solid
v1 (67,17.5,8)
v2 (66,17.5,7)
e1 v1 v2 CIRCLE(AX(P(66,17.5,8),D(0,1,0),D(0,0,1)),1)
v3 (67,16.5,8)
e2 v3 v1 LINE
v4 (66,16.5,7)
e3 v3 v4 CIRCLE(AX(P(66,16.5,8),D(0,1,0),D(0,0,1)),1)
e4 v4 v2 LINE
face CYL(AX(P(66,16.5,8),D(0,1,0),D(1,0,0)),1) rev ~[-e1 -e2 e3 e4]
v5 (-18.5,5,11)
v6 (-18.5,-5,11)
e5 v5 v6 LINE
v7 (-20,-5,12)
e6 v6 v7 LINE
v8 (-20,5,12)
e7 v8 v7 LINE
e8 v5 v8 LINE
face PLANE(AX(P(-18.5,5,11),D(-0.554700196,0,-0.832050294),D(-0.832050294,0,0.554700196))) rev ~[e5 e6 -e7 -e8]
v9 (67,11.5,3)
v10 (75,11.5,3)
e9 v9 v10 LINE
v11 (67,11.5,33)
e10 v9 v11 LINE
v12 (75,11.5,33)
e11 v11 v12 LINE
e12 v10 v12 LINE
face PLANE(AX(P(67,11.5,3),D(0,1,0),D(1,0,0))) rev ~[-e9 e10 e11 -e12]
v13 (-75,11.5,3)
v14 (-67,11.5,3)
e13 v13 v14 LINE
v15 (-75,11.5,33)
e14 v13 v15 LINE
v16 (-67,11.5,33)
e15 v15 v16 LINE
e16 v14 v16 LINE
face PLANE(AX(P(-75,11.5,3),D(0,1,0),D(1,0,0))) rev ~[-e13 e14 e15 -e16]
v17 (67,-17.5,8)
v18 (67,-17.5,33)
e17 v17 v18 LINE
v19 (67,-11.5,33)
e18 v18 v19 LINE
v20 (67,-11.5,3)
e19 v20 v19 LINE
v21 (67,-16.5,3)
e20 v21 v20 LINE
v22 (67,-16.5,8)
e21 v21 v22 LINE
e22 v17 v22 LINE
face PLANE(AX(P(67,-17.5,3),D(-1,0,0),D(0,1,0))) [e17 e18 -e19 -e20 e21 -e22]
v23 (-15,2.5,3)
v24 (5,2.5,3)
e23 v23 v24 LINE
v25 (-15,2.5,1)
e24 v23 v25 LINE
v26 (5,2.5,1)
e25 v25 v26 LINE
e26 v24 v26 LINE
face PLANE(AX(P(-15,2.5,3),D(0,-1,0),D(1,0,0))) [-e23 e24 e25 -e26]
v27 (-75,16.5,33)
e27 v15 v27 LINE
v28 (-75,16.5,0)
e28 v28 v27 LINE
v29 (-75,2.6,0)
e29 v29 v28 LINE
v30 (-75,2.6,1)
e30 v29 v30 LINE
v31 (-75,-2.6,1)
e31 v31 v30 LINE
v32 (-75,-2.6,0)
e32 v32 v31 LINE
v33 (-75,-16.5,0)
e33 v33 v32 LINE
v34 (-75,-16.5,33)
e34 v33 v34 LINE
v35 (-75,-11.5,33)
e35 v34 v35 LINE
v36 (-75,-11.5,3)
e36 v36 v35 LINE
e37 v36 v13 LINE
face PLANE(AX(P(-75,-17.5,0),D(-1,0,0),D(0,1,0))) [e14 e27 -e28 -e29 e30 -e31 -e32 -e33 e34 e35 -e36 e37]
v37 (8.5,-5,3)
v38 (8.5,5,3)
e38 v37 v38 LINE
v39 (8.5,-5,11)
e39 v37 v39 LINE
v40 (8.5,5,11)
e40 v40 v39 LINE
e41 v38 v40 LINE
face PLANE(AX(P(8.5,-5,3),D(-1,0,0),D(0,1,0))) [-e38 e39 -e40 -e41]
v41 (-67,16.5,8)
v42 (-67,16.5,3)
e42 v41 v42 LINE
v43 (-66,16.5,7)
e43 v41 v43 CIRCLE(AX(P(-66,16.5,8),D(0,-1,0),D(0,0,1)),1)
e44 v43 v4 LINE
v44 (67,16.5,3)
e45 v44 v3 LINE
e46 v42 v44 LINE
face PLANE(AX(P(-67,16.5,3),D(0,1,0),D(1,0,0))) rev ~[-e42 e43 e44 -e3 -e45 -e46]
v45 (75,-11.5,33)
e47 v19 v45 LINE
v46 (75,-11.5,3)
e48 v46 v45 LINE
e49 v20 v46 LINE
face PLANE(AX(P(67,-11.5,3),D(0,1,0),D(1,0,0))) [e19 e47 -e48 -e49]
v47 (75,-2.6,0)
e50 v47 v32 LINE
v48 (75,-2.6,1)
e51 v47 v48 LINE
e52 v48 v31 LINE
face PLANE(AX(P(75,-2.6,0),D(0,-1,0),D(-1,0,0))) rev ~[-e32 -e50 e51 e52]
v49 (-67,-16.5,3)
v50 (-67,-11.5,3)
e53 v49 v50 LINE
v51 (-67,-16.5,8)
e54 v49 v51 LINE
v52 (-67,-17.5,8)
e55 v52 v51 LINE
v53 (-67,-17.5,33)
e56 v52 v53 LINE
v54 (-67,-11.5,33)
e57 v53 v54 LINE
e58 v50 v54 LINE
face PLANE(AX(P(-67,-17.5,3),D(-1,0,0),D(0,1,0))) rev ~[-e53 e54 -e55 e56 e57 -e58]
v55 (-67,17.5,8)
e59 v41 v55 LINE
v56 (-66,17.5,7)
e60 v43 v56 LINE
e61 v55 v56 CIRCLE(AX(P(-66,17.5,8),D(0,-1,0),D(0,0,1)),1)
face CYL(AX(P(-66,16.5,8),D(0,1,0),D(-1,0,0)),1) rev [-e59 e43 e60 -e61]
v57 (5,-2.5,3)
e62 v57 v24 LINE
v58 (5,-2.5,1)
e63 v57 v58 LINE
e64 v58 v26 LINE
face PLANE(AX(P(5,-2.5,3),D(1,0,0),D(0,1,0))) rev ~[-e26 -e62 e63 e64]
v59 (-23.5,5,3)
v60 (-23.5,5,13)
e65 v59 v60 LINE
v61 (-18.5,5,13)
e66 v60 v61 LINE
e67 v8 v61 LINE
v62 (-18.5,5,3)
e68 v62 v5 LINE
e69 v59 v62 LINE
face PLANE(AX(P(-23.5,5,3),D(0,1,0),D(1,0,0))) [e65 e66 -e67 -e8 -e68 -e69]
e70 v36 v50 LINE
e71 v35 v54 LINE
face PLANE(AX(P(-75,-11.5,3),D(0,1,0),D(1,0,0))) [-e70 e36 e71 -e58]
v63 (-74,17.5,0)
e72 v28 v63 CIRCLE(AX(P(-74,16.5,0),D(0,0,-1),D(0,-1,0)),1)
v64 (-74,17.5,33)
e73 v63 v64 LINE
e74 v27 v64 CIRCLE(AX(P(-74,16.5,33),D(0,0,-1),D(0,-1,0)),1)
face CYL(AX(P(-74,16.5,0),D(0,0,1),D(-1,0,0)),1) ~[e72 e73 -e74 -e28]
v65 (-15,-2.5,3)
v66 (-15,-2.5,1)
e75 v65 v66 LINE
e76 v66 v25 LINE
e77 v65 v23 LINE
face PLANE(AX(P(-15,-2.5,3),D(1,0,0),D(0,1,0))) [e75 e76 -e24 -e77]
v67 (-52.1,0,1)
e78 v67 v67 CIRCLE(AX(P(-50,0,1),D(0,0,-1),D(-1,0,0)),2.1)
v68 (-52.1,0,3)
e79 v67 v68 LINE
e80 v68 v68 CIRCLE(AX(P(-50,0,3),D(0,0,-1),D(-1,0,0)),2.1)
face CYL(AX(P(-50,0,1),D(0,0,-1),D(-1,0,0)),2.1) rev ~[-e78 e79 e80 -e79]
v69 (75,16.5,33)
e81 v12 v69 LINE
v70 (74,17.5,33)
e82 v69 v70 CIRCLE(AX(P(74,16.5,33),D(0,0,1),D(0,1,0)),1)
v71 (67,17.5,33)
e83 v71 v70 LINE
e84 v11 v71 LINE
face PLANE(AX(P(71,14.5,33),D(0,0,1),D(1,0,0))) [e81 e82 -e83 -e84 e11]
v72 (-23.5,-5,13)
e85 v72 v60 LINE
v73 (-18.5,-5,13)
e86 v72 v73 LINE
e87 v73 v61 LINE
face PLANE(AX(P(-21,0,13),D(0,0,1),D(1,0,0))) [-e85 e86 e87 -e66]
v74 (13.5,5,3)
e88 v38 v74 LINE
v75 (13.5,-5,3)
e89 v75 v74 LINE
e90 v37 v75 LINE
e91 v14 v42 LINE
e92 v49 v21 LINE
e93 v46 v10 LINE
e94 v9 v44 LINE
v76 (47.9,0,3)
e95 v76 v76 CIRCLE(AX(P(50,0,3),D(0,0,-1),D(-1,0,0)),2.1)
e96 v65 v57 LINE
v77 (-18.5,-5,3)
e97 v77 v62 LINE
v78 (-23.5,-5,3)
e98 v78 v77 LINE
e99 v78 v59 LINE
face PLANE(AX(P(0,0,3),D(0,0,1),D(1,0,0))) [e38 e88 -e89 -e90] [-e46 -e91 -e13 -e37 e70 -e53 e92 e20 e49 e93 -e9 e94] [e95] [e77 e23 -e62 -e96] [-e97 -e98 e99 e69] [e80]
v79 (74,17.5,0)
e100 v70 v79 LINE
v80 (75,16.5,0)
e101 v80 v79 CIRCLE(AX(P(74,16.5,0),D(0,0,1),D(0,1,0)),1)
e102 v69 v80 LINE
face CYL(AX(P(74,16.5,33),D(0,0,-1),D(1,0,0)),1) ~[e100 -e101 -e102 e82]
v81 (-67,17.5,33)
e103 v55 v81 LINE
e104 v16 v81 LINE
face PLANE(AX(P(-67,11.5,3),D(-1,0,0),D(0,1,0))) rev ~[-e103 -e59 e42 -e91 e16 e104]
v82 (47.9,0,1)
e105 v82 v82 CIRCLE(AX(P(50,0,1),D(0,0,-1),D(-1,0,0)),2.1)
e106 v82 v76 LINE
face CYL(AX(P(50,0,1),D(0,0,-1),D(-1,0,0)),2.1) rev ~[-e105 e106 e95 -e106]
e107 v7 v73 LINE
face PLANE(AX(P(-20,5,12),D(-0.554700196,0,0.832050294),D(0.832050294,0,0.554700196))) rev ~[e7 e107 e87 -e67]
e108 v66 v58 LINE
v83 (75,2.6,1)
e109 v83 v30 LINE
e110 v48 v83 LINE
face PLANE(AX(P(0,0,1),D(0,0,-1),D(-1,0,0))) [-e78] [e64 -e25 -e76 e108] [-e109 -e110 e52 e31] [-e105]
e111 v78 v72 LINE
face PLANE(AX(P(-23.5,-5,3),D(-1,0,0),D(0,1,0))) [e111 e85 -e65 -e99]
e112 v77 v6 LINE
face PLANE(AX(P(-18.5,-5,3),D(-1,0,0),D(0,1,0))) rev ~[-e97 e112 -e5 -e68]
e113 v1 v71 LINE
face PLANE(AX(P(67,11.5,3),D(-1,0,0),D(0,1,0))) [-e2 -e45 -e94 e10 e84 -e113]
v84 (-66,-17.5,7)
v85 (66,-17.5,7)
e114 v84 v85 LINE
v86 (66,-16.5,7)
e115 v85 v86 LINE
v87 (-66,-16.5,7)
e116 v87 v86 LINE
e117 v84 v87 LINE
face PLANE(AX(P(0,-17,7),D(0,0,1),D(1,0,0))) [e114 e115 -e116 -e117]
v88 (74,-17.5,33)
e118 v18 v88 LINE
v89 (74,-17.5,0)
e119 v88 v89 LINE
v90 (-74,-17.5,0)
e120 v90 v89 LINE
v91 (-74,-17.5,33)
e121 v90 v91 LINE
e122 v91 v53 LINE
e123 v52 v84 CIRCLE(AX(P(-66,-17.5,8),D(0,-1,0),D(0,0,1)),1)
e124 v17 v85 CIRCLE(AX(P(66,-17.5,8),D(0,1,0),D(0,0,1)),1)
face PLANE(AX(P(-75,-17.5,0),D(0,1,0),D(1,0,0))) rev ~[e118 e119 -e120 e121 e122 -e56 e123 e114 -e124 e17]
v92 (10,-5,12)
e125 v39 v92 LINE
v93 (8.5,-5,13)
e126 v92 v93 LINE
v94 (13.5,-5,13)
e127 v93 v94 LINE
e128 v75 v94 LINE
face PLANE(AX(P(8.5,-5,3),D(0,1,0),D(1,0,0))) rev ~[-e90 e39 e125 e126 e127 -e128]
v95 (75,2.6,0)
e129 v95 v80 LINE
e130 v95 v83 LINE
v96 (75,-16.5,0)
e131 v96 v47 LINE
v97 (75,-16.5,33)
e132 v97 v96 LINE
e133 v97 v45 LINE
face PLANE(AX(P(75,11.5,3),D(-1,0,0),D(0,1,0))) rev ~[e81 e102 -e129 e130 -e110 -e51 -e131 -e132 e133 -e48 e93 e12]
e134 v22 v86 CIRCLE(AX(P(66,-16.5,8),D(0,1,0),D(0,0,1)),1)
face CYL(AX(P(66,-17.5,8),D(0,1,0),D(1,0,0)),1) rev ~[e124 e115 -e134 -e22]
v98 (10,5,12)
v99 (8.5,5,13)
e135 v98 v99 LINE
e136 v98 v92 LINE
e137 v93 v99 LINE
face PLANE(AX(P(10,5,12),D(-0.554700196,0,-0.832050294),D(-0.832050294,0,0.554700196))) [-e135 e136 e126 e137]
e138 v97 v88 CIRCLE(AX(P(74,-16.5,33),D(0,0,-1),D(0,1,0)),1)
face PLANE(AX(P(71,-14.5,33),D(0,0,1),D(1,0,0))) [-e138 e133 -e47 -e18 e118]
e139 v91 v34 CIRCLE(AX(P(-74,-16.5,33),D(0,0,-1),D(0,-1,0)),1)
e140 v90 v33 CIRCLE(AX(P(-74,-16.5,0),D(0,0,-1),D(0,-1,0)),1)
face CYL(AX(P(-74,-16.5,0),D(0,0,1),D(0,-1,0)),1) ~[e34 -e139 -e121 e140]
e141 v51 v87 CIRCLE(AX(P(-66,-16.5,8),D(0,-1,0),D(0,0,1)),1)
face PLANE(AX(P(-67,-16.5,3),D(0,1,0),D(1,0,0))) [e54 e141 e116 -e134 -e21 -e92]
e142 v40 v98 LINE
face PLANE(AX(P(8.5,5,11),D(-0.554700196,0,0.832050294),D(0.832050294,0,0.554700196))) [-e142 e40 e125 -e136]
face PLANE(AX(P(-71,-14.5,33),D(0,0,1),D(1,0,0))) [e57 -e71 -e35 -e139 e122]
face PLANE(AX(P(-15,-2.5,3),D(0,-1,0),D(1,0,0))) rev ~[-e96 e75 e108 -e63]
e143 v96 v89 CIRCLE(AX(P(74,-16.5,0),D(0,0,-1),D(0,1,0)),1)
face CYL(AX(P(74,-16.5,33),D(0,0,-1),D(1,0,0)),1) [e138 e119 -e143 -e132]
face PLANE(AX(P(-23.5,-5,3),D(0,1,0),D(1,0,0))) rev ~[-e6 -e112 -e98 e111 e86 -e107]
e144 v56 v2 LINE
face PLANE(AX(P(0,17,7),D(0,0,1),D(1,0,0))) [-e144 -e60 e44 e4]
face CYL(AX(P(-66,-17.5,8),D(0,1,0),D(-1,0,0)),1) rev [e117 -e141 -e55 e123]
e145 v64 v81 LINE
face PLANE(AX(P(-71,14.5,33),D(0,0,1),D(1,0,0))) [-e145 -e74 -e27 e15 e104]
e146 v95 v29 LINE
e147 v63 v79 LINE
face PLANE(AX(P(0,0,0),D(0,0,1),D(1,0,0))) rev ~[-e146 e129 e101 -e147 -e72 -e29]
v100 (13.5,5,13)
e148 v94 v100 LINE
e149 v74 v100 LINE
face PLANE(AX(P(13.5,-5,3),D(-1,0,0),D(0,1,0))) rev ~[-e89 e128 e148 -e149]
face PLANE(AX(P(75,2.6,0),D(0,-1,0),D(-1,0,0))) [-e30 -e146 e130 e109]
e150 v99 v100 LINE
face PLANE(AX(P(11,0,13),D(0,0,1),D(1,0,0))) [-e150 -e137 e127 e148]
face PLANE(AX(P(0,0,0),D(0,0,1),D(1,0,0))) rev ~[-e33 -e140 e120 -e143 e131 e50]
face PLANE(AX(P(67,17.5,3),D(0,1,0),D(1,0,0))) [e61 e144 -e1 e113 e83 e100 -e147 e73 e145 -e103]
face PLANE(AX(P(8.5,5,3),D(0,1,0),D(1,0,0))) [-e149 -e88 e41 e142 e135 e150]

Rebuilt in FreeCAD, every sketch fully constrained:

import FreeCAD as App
import Part
import Sketcher
from FreeCAD import Vector
Q = App.Units.Quantity


def edges_at(feature, points):
    """Names of the edges that pass closest to the given points."""
    edges = feature.Shape.Edges
    near = lambda p: min(range(len(edges)), key=lambda i: edges[i].distToShape(Part.Vertex(*p))[0])
    return sorted({f"Edge{near(p) + 1}" for p in points})


def add_polygon(sketch, points):
    """Adds a closed chain of lines whose ends are joined by coincident constraints."""
    first, n = sketch.GeometryCount, len(points)
    for a, b in zip(points, points[1:] + points[:1]):
        sketch.addGeometry(Part.LineSegment(App.Vector(*a, 0), App.Vector(*b, 0)), False)
    for i in range(n):
        sketch.addConstraint(Sketcher.Constraint("Coincident", first + i, 2, first + (i + 1) % n, 1))

doc = App.newDocument("Part")
body = doc.addObject("PartDesign::Body", "Body")

# Sketch on XY plane
sketch1 = body.newObject("Sketcher::SketchObject", "Sketch")
sketch1.AttachmentSupport = (doc.getObject("XY_Plane"), [""])
sketch1.MapMode = "FlatFace"
add_polygon(sketch1, [(-75, 18), (-75, -18), (75, -18), (75, 18)])  # lines 0-3
sketch1.addConstraint([
    Sketcher.Constraint("Vertical", 0),
    Sketcher.Constraint("Horizontal", 1),
    Sketcher.Constraint("Vertical", 2),
    Sketcher.Constraint("Horizontal", 3),
    Sketcher.Constraint("Symmetric", 0, 2, 2, 2, -1, 1),
    Sketcher.Constraint("DistanceX", 1, 1, 1, 2, Q("150 mm")),
    Sketcher.Constraint("DistanceY", 0, 2, 0, 1, Q("35 mm")),
])
pad1 = body.newObject("PartDesign::Pad", "Pad")
pad1.Profile = sketch1
pad1.Length = 3

# Sketch on XY plane
sketch2 = body.newObject("Sketcher::SketchObject", "Sketch001")
sketch2.AttachmentSupport = (doc.getObject("XY_Plane"), [""])
sketch2.MapMode = "FlatFace"
sketch2.AttachmentOffset = App.Placement(Vector(0, 0, 3), App.Rotation())
add_polygon(sketch2, [(-15, 2), (-15, -2), (5, -2), (5, 2)])  # lines 0-3
sketch2.addConstraint([
    Sketcher.Constraint("Vertical", 0),
    Sketcher.Constraint("Horizontal", 1),
    Sketcher.Constraint("Vertical", 2),
    Sketcher.Constraint("Horizontal", 3),
    Sketcher.Constraint("DistanceX", 1, 1, 1, 2, Q("20 mm")),
    Sketcher.Constraint("DistanceY", 0, 2, 0, 1, Q("5 mm")),
    Sketcher.Constraint("DistanceX", 0, 2, -1, 1, Q("15 mm")),
    Sketcher.Constraint("DistanceY", 0, 2, -1, 1, Q("2.5 mm")),
])
pocket1 = body.newObject("PartDesign::Pocket", "Pocket")
pocket1.Profile = sketch2
pocket1.Length = 2

# Sketch on XY plane
sketch3 = body.newObject("Sketcher::SketchObject", "Sketch002")
sketch3.AttachmentSupport = (doc.getObject("XY_Plane"), [""])
sketch3.MapMode = "FlatFace"
add_polygon(sketch3, [(75, 3), (75, -3), (-75, -3), (-75, 3)])  # lines 0-3
sketch3.addConstraint([
    Sketcher.Constraint("Vertical", 0),
    Sketcher.Constraint("Horizontal", 1),
    Sketcher.Constraint("Vertical", 2),
    Sketcher.Constraint("Horizontal", 3),
    Sketcher.Constraint("Symmetric", 0, 2, 2, 2, -1, 1),
    Sketcher.Constraint("DistanceX", 1, 2, 1, 1, Q("150 mm")),
    Sketcher.Constraint("DistanceY", 0, 2, 0, 1, Q("5.2 mm")),
])
pocket2 = body.newObject("PartDesign::Pocket", "Pocket001")
pocket2.Profile = sketch3
pocket2.Length = 1
pocket2.Reversed = True

# Sketch on XY plane
sketch4 = body.newObject("Sketcher::SketchObject", "Sketch003")
sketch4.AttachmentSupport = (doc.getObject("XY_Plane"), [""])
sketch4.MapMode = "FlatFace"
sketch4.AttachmentOffset = App.Placement(Vector(0, 0, 1), App.Rotation())
sketch4.addGeometry([
    Part.Circle(Vector(50, 0, 0), Vector(0, 0, 1), 2.1),
    Part.Circle(Vector(-50, 0, 0), Vector(0, 0, 1), 2.1),
], False)
sketch4.addConstraint([
    Sketcher.Constraint("Equal", 0, 1),
    Sketcher.Constraint("Symmetric", 0, 3, 1, 3, -1, 1),
    Sketcher.Constraint("PointOnObject", 0, 3, -1),
    Sketcher.Constraint("Diameter", 0, Q("4.2 mm")),
    Sketcher.Constraint("DistanceX", -1, 1, 0, 3, Q("50 mm")),
])
pocket3 = body.newObject("PartDesign::Pocket", "Pocket002")
pocket3.Profile = sketch4
pocket3.Type = "ThroughAll"
pocket3.Reversed = True

# Sketch on XY plane
sketch5 = body.newObject("Sketcher::SketchObject", "Sketch004")
sketch5.AttachmentSupport = (doc.getObject("XY_Plane"), [""])
sketch5.MapMode = "FlatFace"
sketch5.AttachmentOffset = App.Placement(Vector(0, 0, 3), App.Rotation())
add_polygon(sketch5, [(67, 18), (67, 12), (75, 12), (75, 18)])  # lines 0-3
add_polygon(sketch5, [(67, -12), (67, -18), (75, -18), (75, -12)])  # lines 4-7
add_polygon(sketch5, [(-75, -12), (-75, -18), (-67, -18), (-67, -12)])  # lines 8-11
add_polygon(sketch5, [(-75, 18), (-75, 12), (-67, 12), (-67, 18)])  # lines 12-15
sketch5.addConstraint([
    Sketcher.Constraint("Vertical", 0),
    Sketcher.Constraint("Horizontal", 1),
    Sketcher.Constraint("Vertical", 2),
    Sketcher.Constraint("Horizontal", 3),
    Sketcher.Constraint("Vertical", 4),
    Sketcher.Constraint("Horizontal", 5),
    Sketcher.Constraint("Vertical", 6),
    Sketcher.Constraint("Horizontal", 7),
    Sketcher.Constraint("Vertical", 8),
    Sketcher.Constraint("Horizontal", 9),
    Sketcher.Constraint("Vertical", 10),
    Sketcher.Constraint("Horizontal", 11),
    Sketcher.Constraint("Vertical", 12),
    Sketcher.Constraint("Horizontal", 13),
    Sketcher.Constraint("Vertical", 14),
    Sketcher.Constraint("Horizontal", 15),
    Sketcher.Constraint("Symmetric", 2, 2, 8, 2, -1, 1),
    Sketcher.Constraint("Symmetric", 0, 2, 10, 2, -1, 1),
    Sketcher.Constraint("Symmetric", 6, 2, 12, 2, -1, 1),
    Sketcher.Constraint("Symmetric", 4, 2, 14, 2, -1, 1),
    Sketcher.Constraint("Symmetric", 5, 2, 8, 2, -2),
    Sketcher.Constraint("Symmetric", 7, 2, 10, 2, -2),
    Sketcher.Constraint("DistanceX", 1, 1, 1, 2, Q("8 mm")),
    Sketcher.Constraint("DistanceY", 0, 2, 0, 1, Q("6 mm")),
    Sketcher.Constraint("DistanceX", -1, 1, 0, 2, Q("67 mm")),
    Sketcher.Constraint("DistanceY", 4, 2, 0, 2, Q("29 mm")),
])
pad2 = body.newObject("PartDesign::Pad", "Pad001")
pad2.Profile = sketch5
pad2.Length = 30
doc.recompute()

fillet = body.newObject("PartDesign::Fillet", "Fillet")
fillet.Base = (pad2, edges_at(pad2, [
    (75, -17.5, 16.5),
    (75, 17.5, 16.5),
    (-75, 17.5, 16.5),
    (-75, -17.5, 16.5),
]))
fillet.Radius = 1

# Sketch on XY plane
sketch6 = body.newObject("Sketcher::SketchObject", "Sketch005")
sketch6.AttachmentSupport = (doc.getObject("XY_Plane"), [""])
sketch6.MapMode = "FlatFace"
sketch6.AttachmentOffset = App.Placement(Vector(0, 0, 3), App.Rotation())
add_polygon(sketch6, [(-67, 17.5), (-67, 16.5), (67, 16.5), (67, 17.5)])  # lines 0-3
add_polygon(sketch6, [(-67, -16.5), (-67, -17.5), (67, -17.5), (67, -16.5)])  # lines 4-7
sketch6.addConstraint([
    Sketcher.Constraint("Vertical", 0),
    Sketcher.Constraint("Horizontal", 1),
    Sketcher.Constraint("Vertical", 2),
    Sketcher.Constraint("Horizontal", 3),
    Sketcher.Constraint("Vertical", 4),
    Sketcher.Constraint("Horizontal", 5),
    Sketcher.Constraint("Vertical", 6),
    Sketcher.Constraint("Horizontal", 7),
    Sketcher.Constraint("Symmetric", 2, 2, 4, 2, -1, 1),
    Sketcher.Constraint("Symmetric", 0, 2, 6, 2, -1, 1),
    Sketcher.Constraint("Vertical", 3, 2, 4, 2),
    Sketcher.Constraint("DistanceX", 1, 1, 1, 2, Q("134 mm")),
    Sketcher.Constraint("DistanceY", 0, 2, 0, 1, Q("1 mm")),
    Sketcher.Constraint("DistanceY", 4, 2, 0, 2, Q("34 mm")),
])
pad3 = body.newObject("PartDesign::Pad", "Pad002")
pad3.Profile = sketch6
pad3.Length = 4
doc.recompute()

fillet2 = body.newObject("PartDesign::Fillet", "Fillet001")
fillet2.Base = (pad3, edges_at(pad3, [
    (67, 17, 7),
    (-67, 17, 7),
    (-67, -17, 7),
    (67, -17, 7),
]))
fillet2.Radius = 1

# Sketch on XY plane
sketch7 = body.newObject("Sketcher::SketchObject", "Sketch006")
sketch7.AttachmentSupport = (doc.getObject("XY_Plane"), [""])
sketch7.MapMode = "FlatFace"
sketch7.AttachmentOffset = App.Placement(Vector(0, 0, 3), App.Rotation())
add_polygon(sketch7, [(-24, 5), (-24, -5), (-18, -5), (-18, 5)])  # lines 0-3
add_polygon(sketch7, [(8, 5), (8, -5), (14, -5), (14, 5)])  # lines 4-7
sketch7.addConstraint([
    Sketcher.Constraint("Vertical", 0),
    Sketcher.Constraint("Horizontal", 1),
    Sketcher.Constraint("Vertical", 2),
    Sketcher.Constraint("Horizontal", 3),
    Sketcher.Constraint("Vertical", 4),
    Sketcher.Constraint("Horizontal", 5),
    Sketcher.Constraint("Vertical", 6),
    Sketcher.Constraint("Horizontal", 7),
    Sketcher.Constraint("Horizontal", 1, 2, 4, 2),
    Sketcher.Constraint("Horizontal", 3, 2, 6, 2),
    Sketcher.Constraint("Equal", 3, 5),
    Sketcher.Constraint("DistanceX", 1, 1, 1, 2, Q("5 mm")),
    Sketcher.Constraint("DistanceY", 0, 2, 0, 1, Q("10 mm")),
    Sketcher.Constraint("DistanceY", 0, 2, -1, 1, Q("5 mm")),
    Sketcher.Constraint("DistanceX", 1, 2, 4, 2, Q("27 mm")),
    Sketcher.Constraint("DistanceX", 0, 2, -1, 1, Q("23.5 mm")),
])
pad4 = body.newObject("PartDesign::Pad", "Pad003")
pad4.Profile = sketch7
pad4.Length = 10

# Sketch on XZ plane
sketch8 = body.newObject("Sketcher::SketchObject", "Sketch007")
sketch8.AttachmentSupport = (doc.getObject("XZ_Plane"), [""])
sketch8.MapMode = "FlatFace"
sketch8.AttachmentOffset = App.Placement(Vector(0, 0, -5), App.Rotation())
add_polygon(sketch8, [(-18.5, 13), (-18.5, 11), (-20, 12)])  # lines 0-2
add_polygon(sketch8, [(8.5, 11), (8.5, 13), (10, 12)])  # lines 3-5
sketch8.addConstraint([
    Sketcher.Constraint("Vertical", 0),
    Sketcher.Constraint("Vertical", 3),
    Sketcher.Constraint("Parallel", 1, 4),
    Sketcher.Constraint("Parallel", 2, 5),
    Sketcher.Constraint("Horizontal", 2, 2, 3, 2),
    Sketcher.Constraint("Horizontal", 1, 2, 4, 2),
    Sketcher.Constraint("Horizontal", 0, 2, 5, 2),
    Sketcher.Constraint("DistanceY", 0, 2, 0, 1, Q("2 mm")),
    Sketcher.Constraint("DistanceY", -1, 1, 0, 2, Q("11 mm")),
    Sketcher.Constraint("DistanceX", 1, 2, -1, 1, Q("20 mm")),
    Sketcher.Constraint("DistanceX", -1, 1, 4, 2, Q("10 mm")),
    Sketcher.Constraint("DistanceX", 2, 2, 3, 2, Q("27 mm")),
])
pocket4 = body.newObject("PartDesign::Pocket", "Pocket003")
pocket4.Profile = sketch8
pocket4.Length = 10
pocket4.Reversed = True

doc.recompute()
